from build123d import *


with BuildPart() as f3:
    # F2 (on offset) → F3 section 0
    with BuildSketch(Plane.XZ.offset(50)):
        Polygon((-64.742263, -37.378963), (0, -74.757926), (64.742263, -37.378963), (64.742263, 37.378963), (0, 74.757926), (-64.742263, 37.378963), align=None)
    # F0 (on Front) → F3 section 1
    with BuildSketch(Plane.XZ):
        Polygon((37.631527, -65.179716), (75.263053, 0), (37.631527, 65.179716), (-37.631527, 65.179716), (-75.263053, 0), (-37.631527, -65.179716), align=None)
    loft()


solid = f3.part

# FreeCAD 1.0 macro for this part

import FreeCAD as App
import Part
import Sketcher
from FreeCAD import Vector
Q = App.Units.Quantity


def add_polygon(sketch, points):
    """Adds a closed chain of lines whose ends are joined by coincident constraints."""
    first, n = sketch.GeometryCount, len(points)
    for a, b in zip(points, points[1:] + points[:1]):
        sketch.addGeometry(Part.LineSegment(App.Vector(*a, 0), App.Vector(*b, 0)), False)
    for i in range(n):
        sketch.addConstraint(Sketcher.Constraint("Coincident", first + i, 2, first + (i + 1) % n, 1))

doc = App.newDocument("Part")
body = doc.addObject("PartDesign::Body", "Body")

sketch1 = body.newObject("Sketcher::SketchObject", "Sketch")
sketch1.AttachmentSupport = (doc.getObject("XZ_Plane"), [""])
sketch1.MapMode = "FlatFace"
sketch1.AttachmentOffset = App.Placement(Vector(0, 0, 50), App.Rotation())
add_polygon(sketch1, [(-65, -37), (0, -75), (65, -37), (65, 37), (0, 75), (-65, 37)])
sketch1.addConstraint([
    Sketcher.Constraint("Vertical", 2),
    Sketcher.Constraint("Vertical", 5),
    Sketcher.Constraint("Symmetric", 0, 2, 3, 2, -1, 1),
    Sketcher.Constraint("Symmetric", 1, 2, 4, 2, -1, 1),
    Sketcher.Constraint("PointOnObject", 0, 2, -2),
    Sketcher.Constraint("Parallel", 0, 3),
    Sketcher.Constraint("Horizontal", 2, 2, 4, 2),
    Sketcher.Constraint("Angle", 0, Q("-30 deg")),
    Sketcher.Constraint("DistanceY", 2, 1, 2, 2, 74.757926),
    Sketcher.Constraint("DistanceY", 0, 2, 2, 2, 112.136889),
])

sketch2 = body.newObject("Sketcher::SketchObject", "Sketch001")
sketch2.AttachmentSupport = (doc.getObject("XZ_Plane"), [""])
sketch2.MapMode = "FlatFace"
add_polygon(sketch2, [(38, -65), (75, 0), (38, 65), (-38, 65), (-75, 0), (-38, -65)])
sketch2.addConstraint([
    Sketcher.Constraint("Horizontal", 2),
    Sketcher.Constraint("Horizontal", 5),
    Sketcher.Constraint("Symmetric", 0, 2, 3, 2, -1, 1),
    Sketcher.Constraint("Symmetric", 1, 2, 4, 2, -1, 1),
    Sketcher.Constraint("PointOnObject", 0, 2, -1),
    Sketcher.Constraint("Parallel", 0, 3),
    Sketcher.Constraint("Vertical", 2, 2, 4, 2),
    Sketcher.Constraint("Angle", 0, Q("60 deg")),
    Sketcher.Constraint("DistanceX", 2, 2, 2, 1, 75.263054),
    Sketcher.Constraint("DistanceX", 2, 2, 0, 2, 112.89458),
])

additiveloft = body.newObject("PartDesign::AdditiveLoft", "AdditiveLoft")
additiveloft.Profile = sketch1
additiveloft.Sections = [sketch2]

doc.recompute()
